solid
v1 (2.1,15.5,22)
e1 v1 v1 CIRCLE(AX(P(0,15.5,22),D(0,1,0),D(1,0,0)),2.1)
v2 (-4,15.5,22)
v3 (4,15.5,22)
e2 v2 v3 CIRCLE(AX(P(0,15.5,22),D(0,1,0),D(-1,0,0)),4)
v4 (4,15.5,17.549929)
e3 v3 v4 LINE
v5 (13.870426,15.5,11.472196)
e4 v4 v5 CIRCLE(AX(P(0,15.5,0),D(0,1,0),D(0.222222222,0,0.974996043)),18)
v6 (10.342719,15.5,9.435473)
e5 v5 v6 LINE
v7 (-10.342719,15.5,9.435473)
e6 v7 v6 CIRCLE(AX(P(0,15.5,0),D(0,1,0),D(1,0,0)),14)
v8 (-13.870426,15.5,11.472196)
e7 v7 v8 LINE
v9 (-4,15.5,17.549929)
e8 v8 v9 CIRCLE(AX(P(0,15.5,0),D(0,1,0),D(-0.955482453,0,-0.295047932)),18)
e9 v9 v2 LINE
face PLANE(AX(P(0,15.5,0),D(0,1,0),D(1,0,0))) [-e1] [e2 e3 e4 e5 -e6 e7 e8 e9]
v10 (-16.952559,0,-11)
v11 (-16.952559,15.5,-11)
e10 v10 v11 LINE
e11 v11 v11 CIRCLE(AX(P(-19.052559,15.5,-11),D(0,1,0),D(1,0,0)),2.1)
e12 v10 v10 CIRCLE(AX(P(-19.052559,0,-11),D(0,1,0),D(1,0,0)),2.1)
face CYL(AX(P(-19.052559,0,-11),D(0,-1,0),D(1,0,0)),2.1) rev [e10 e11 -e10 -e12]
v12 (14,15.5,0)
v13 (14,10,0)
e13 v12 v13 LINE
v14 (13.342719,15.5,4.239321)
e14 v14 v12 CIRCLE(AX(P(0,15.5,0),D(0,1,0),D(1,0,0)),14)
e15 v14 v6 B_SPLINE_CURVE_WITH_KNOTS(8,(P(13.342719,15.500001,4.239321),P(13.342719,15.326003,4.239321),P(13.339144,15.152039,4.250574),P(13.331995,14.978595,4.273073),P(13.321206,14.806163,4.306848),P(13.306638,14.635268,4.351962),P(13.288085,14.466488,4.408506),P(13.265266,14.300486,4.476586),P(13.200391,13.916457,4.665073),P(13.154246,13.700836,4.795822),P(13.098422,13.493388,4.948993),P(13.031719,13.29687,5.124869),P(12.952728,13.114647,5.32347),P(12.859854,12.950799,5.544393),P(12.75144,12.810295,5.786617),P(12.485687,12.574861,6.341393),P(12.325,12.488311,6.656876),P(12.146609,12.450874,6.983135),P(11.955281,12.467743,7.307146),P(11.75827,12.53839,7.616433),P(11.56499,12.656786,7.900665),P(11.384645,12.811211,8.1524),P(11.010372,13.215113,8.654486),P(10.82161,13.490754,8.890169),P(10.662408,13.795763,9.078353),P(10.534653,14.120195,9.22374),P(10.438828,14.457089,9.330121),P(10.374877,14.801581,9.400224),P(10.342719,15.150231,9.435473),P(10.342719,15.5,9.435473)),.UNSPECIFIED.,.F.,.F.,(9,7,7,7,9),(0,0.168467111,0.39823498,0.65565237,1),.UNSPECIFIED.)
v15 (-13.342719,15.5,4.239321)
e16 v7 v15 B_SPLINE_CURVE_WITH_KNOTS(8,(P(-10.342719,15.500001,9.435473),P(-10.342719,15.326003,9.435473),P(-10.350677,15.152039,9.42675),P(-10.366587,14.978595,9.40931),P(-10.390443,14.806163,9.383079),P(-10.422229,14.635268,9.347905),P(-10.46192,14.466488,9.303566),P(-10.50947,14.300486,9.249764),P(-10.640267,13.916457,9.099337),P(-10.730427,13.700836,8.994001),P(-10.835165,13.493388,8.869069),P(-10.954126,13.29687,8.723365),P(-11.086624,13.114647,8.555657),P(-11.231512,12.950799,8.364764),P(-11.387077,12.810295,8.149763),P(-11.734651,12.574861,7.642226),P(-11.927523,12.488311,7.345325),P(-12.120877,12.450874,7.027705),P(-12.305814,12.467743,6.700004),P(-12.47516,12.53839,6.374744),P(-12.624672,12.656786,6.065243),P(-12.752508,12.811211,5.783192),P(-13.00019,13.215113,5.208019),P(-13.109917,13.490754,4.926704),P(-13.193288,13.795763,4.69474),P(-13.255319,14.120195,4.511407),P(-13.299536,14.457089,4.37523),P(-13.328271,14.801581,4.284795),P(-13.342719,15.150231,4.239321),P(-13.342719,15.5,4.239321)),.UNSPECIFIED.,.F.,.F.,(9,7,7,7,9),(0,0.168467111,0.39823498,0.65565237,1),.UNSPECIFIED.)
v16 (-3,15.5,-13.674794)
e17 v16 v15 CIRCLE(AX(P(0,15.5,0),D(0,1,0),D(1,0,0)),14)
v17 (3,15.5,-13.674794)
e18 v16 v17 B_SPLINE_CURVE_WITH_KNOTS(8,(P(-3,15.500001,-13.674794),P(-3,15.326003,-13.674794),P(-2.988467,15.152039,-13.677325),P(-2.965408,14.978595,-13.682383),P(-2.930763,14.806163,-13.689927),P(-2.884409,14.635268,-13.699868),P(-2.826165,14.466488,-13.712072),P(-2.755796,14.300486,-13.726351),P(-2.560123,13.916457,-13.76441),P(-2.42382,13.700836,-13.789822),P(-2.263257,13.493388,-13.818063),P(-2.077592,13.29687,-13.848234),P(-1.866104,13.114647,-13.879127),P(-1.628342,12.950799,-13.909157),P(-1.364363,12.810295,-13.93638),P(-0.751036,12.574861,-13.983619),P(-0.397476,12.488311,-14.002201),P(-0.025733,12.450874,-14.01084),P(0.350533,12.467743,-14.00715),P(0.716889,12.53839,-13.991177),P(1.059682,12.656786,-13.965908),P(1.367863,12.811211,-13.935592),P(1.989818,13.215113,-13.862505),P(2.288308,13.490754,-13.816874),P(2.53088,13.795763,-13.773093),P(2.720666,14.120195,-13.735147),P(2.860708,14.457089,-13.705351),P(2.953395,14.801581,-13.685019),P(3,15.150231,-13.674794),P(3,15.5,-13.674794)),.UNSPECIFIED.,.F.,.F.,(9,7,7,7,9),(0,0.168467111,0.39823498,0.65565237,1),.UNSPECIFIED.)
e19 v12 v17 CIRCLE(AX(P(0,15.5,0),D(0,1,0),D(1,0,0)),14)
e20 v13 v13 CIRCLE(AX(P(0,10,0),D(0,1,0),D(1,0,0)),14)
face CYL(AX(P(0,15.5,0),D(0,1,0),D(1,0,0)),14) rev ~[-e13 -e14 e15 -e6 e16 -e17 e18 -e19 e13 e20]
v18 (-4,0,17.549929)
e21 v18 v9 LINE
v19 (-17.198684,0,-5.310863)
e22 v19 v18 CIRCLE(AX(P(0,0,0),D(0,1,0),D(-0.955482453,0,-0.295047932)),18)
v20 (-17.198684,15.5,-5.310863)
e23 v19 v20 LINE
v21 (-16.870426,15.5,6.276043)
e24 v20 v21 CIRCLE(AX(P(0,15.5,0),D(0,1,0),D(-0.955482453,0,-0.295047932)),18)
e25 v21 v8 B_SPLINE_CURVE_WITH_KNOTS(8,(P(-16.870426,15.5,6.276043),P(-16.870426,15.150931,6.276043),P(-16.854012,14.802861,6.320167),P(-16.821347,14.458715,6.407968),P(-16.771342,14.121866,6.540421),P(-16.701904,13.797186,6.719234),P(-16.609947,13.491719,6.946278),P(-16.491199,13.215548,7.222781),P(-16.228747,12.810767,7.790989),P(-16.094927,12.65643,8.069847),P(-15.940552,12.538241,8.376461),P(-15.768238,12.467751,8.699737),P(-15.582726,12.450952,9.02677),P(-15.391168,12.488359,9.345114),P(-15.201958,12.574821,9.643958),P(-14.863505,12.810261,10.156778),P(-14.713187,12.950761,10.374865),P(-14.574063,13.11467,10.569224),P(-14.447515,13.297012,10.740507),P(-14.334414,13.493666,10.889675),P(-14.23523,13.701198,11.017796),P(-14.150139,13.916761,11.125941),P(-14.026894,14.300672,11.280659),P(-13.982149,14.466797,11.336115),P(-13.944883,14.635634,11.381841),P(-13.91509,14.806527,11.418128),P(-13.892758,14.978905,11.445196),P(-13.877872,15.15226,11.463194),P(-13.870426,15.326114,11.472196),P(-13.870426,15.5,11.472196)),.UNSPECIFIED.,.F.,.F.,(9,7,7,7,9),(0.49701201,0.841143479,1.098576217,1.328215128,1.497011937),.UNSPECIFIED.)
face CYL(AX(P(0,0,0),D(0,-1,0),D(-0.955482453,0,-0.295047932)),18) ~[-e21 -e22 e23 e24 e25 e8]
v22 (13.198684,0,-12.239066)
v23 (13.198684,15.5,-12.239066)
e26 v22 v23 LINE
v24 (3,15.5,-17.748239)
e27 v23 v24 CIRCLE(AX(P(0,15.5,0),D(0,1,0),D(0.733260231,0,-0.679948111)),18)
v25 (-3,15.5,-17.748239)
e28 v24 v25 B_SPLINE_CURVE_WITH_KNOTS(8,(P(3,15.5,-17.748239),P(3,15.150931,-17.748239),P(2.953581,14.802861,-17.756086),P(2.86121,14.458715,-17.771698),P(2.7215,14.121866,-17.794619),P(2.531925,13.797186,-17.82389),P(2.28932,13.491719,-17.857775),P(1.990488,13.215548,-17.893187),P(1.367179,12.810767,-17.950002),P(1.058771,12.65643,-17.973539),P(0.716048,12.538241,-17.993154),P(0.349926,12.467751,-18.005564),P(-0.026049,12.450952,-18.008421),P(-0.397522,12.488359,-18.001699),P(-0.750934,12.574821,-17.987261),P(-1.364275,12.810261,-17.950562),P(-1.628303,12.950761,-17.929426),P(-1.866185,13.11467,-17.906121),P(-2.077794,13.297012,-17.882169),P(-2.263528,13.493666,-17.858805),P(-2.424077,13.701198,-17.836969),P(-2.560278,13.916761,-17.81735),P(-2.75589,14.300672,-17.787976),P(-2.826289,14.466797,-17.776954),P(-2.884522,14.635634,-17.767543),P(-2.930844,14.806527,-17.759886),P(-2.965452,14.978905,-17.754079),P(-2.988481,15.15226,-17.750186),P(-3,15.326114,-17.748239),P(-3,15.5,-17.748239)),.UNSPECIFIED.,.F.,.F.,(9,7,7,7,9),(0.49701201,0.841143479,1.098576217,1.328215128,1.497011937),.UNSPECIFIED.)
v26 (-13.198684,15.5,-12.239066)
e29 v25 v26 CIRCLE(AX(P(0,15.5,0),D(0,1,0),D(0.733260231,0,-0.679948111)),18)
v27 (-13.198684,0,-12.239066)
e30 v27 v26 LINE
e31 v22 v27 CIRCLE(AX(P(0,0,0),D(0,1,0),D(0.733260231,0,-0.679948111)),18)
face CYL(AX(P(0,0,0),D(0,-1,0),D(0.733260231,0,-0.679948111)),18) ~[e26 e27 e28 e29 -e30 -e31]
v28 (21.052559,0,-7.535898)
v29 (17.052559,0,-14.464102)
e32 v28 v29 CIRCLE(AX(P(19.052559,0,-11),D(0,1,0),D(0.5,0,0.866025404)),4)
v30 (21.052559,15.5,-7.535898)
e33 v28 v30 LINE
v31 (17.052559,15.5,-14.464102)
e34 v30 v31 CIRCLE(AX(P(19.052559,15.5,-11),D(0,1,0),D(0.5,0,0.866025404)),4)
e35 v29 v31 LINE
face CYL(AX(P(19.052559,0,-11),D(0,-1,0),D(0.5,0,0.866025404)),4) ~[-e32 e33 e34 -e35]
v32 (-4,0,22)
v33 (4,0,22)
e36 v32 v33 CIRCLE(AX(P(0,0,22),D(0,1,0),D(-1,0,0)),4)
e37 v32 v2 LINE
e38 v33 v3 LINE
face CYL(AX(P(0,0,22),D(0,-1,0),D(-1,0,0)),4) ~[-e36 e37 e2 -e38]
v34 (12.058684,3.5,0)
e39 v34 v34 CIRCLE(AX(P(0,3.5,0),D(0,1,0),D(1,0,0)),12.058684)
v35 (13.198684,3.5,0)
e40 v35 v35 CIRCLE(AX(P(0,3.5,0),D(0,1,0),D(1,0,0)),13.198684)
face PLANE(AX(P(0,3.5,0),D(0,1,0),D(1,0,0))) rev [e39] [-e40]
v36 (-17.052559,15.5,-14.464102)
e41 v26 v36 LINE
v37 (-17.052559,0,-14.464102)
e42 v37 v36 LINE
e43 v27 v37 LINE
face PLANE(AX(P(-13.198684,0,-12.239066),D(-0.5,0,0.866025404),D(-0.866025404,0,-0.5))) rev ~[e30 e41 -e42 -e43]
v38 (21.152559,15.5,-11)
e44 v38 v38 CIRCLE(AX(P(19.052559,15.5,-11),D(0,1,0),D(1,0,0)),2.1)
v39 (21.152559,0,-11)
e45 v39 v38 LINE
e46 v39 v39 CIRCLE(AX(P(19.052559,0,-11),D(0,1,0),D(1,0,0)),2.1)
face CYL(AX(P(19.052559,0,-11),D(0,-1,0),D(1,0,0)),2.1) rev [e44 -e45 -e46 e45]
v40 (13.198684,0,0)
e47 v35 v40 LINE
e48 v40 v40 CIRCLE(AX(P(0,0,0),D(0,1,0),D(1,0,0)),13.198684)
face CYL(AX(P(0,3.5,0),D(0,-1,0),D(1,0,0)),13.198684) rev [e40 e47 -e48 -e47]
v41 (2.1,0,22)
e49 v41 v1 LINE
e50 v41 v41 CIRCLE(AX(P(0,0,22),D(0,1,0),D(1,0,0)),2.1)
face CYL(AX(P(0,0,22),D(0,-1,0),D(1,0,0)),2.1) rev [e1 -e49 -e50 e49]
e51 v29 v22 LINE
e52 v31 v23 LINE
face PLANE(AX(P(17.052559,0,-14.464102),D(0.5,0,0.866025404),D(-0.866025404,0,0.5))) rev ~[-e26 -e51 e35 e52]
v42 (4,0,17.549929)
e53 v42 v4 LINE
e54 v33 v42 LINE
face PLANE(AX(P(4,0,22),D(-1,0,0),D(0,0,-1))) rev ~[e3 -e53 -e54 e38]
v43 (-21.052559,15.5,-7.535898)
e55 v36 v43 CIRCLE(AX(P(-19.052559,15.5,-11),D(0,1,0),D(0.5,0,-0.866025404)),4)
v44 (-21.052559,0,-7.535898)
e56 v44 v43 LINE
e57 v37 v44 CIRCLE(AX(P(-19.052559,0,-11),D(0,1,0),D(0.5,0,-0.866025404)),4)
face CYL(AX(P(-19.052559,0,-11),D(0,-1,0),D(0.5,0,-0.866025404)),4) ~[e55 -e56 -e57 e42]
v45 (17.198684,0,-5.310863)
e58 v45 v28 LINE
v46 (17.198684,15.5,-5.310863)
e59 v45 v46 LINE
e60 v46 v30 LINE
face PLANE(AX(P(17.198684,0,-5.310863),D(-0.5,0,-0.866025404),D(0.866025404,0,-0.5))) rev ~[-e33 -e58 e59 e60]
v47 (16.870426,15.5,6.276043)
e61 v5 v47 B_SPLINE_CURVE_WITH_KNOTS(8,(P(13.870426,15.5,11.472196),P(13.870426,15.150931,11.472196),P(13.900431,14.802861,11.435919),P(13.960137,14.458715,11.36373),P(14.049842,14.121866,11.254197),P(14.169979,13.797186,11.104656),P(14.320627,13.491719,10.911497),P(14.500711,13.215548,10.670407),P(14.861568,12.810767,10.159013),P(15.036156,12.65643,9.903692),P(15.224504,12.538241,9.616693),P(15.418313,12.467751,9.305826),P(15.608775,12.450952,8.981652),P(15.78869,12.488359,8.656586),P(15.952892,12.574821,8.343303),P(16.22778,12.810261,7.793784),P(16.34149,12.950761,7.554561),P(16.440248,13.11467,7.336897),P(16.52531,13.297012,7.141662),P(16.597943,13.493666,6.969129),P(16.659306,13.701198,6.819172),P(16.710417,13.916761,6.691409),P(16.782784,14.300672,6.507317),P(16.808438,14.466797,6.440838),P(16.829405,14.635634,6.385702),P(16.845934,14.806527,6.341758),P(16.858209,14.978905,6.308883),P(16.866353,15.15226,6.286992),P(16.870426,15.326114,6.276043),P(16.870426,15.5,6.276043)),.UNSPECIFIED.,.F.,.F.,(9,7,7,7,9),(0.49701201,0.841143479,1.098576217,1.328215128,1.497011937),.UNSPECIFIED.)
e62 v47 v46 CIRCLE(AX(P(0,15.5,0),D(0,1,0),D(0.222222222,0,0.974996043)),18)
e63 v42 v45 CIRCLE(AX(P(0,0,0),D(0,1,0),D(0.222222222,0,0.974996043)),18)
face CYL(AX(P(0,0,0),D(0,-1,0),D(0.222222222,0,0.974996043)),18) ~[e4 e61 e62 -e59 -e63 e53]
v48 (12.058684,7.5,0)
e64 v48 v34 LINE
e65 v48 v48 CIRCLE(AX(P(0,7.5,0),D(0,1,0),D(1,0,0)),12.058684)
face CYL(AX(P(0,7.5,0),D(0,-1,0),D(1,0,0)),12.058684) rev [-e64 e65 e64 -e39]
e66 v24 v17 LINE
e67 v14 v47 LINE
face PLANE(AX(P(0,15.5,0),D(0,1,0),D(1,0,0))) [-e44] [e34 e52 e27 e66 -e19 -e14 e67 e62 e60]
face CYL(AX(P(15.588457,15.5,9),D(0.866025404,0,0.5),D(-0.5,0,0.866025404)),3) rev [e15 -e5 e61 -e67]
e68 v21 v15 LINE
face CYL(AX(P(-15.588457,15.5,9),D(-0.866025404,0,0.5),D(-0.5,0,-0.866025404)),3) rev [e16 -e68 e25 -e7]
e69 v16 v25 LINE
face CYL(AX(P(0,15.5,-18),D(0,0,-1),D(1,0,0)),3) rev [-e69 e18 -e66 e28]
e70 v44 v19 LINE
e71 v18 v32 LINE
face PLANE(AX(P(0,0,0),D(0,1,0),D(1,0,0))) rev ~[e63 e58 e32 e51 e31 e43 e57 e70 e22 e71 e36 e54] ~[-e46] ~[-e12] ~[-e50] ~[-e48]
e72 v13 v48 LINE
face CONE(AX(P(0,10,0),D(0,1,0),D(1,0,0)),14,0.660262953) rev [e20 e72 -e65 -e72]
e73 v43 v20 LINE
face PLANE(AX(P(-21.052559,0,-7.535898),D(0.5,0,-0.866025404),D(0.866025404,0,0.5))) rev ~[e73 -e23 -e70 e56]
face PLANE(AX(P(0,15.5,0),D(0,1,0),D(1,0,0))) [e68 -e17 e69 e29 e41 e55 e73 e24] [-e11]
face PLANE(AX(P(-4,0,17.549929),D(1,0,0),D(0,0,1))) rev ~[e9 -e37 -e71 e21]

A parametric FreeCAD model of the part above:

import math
import FreeCAD as App
import Part
import Sketcher
from FreeCAD import Vector
Q = App.Units.Quantity


def add_polygon(sketch, points):
    """Adds a closed chain of lines whose ends are joined by coincident constraints."""
    first, n = sketch.GeometryCount, len(points)
    for a, b in zip(points, points[1:] + points[:1]):
        sketch.addGeometry(Part.LineSegment(App.Vector(*a, 0), App.Vector(*b, 0)), False)
    for i in range(n):
        sketch.addConstraint(Sketcher.Constraint("Coincident", first + i, 2, first + (i + 1) % n, 1))

doc = App.newDocument("Part")
body = doc.addObject("PartDesign::Body", "Body")

sketch1 = body.newObject("Sketcher::SketchObject", "Sketch")
sketch1.AttachmentSupport = (doc.getObject("XZ_Plane"), [""])
sketch1.MapMode = "FlatFace"
sketch1.addGeometry(Part.LineSegment(Vector(-4, 17.5, 0), Vector(-4, 22, 0)), False)
sketch1.addGeometry(Part.ArcOfCircle(Part.Circle(Vector(0, 22, 0), Vector(0, 0, 1), 4), math.radians(0), math.radians(180)), False)
sketch1.addGeometry(Part.LineSegment(Vector(4, 22, 0), Vector(4, 17.5, 0)), False)
sketch1.addGeometry(Part.ArcOfCircle(Part.Circle(Vector(0, 0, 0), Vector(0, 0, 1), 18), math.radians(-17), math.radians(77)), False)
sketch1.addGeometry(Part.LineSegment(Vector(17.2, -5.3, 0), Vector(21.1, -7.5, 0)), False)
sketch1.addGeometry(Part.ArcOfCircle(Part.Circle(Vector(19.1, -11, 0), Vector(0, 0, 1), 4), math.radians(-120), math.radians(60)), False)
sketch1.addGeometry(Part.LineSegment(Vector(17.1, -14.5, 0), Vector(13.2, -12.2, 0)), False)
sketch1.addGeometry(Part.ArcOfCircle(Part.Circle(Vector(0, 0, 0), Vector(0, 0, 1), 18), math.radians(-137), math.radians(-43)), False)
sketch1.addGeometry(Part.LineSegment(Vector(-13.2, -12.2, 0), Vector(-17.1, -14.5, 0)), False)
sketch1.addGeometry(Part.ArcOfCircle(Part.Circle(Vector(-19.1, -11, 0), Vector(0, 0, 1), 4), math.radians(120), math.radians(300)), False)
sketch1.addGeometry(Part.LineSegment(Vector(-21.1, -7.5, 0), Vector(-17.2, -5.3, 0)), False)
sketch1.addGeometry(Part.ArcOfCircle(Part.Circle(Vector(0, 0, 0), Vector(0, 0, 1), 18), math.radians(103), math.radians(197)), False)
sketch1.addGeometry(Part.Circle(Vector(0, 22, 0), Vector(0, 0, 1), 2.1), False)
sketch1.addGeometry(Part.Circle(Vector(-19.1, -11, 0), Vector(0, 0, 1), 2.1), False)
sketch1.addGeometry(Part.Circle(Vector(19.1, -11, 0), Vector(0, 0, 1), 2.1), False)
sketch1.addConstraint(Sketcher.Constraint("Tangent", 0, 2, 1, 2))
sketch1.addConstraint(Sketcher.Constraint("Tangent", 1, 1, 2, 1))
sketch1.addConstraint(Sketcher.Constraint("Coincident", 2, 2, 3, 2))
sketch1.addConstraint(Sketcher.Constraint("Coincident", 3, 1, 4, 1))
sketch1.addConstraint(Sketcher.Constraint("Tangent", 4, 2, 5, 2))
sketch1.addConstraint(Sketcher.Constraint("Tangent", 5, 1, 6, 1))
sketch1.addConstraint(Sketcher.Constraint("Coincident", 6, 2, 7, 2))
sketch1.addConstraint(Sketcher.Constraint("Coincident", 7, 1, 8, 1))
sketch1.addConstraint(Sketcher.Constraint("Tangent", 8, 2, 9, 2))
sketch1.addConstraint(Sketcher.Constraint("Tangent", 9, 1, 10, 1))
sketch1.addConstraint(Sketcher.Constraint("Coincident", 10, 2, 11, 2))
sketch1.addConstraint(Sketcher.Constraint("Coincident", 11, 1, 0, 1))
sketch1.addConstraint(Sketcher.Constraint("Vertical", 0))
sketch1.addConstraint(Sketcher.Constraint("Vertical", 2))
sketch1.addConstraint(Sketcher.Constraint("Coincident", 3, 3, -1, 1))
sketch1.addConstraint(Sketcher.Constraint("Coincident", 7, 3, -1, 1))
sketch1.addConstraint(Sketcher.Constraint("Coincident", 11, 3, -1, 1))
sketch1.addConstraint(Sketcher.Constraint("Coincident", 12, 3, 1, 3))
sketch1.addConstraint(Sketcher.Constraint("Coincident", 13, 3, 9, 3))
sketch1.addConstraint(Sketcher.Constraint("Coincident", 14, 3, 5, 3))
sketch1.addConstraint(Sketcher.Constraint("Equal", 1, 5))
sketch1.addConstraint(Sketcher.Constraint("Equal", 3, 7))
sketch1.addConstraint(Sketcher.Constraint("Equal", 5, 9))
sketch1.addConstraint(Sketcher.Constraint("Equal", 7, 11))
sketch1.addConstraint(Sketcher.Constraint("Equal", 12, 13))
sketch1.addConstraint(Sketcher.Constraint("Equal", 13, 14))
sketch1.addConstraint(Sketcher.Constraint("Symmetric", 5, 3, 9, 3, -2))
sketch1.addConstraint(Sketcher.Constraint("PointOnObject", 1, 3, -2))
sketch1.addConstraint(Sketcher.Constraint("Parallel", 4, 6))
sketch1.addConstraint(Sketcher.Constraint("Parallel", 8, 10))
sketch1.addConstraint(Sketcher.Constraint("Horizontal", 6, 2, 7, 1))
sketch1.addConstraint(Sketcher.Constraint("Equal", 4, 6))
sketch1.addConstraint(Sketcher.Constraint("Radius", 1, Q("4 mm")))
sketch1.addConstraint(Sketcher.Constraint("Radius", 3, Q("18 mm")))
sketch1.addConstraint(Sketcher.Constraint("Diameter", 12, Q("4.2 mm")))
sketch1.addConstraint(Sketcher.Constraint("Angle", 4, Q("-30 deg")))
sketch1.addConstraint(Sketcher.Constraint("DistanceY", -1, 1, 1, 3, Q("22 mm")))
sketch1.addConstraint(Sketcher.Constraint("DistanceY", 5, 3, -1, 1, Q("11 mm")))
pad1 = body.newObject("PartDesign::Pad", "Pad")
pad1.Profile = sketch1
pad1.Length = 15.5
pad1.Reversed = True

sketch2 = body.newObject("Sketcher::SketchObject", "Sketch001")
sketch2.AttachmentSupport = (doc.getObject("XZ_Plane"), [""])
sketch2.MapMode = "FlatFace"
sketch2.AttachmentOffset = App.Placement(Vector(0, 0, -15.5), App.Rotation())
sketch2.addGeometry(Part.Circle(Vector(0, 0, 0), Vector(0, 0, 1), 14), False)
sketch2.addConstraint(Sketcher.Constraint("Coincident", 0, 3, -1, 1))
sketch2.addConstraint(Sketcher.Constraint("Diameter", 0, Q("28 mm")))
pocket1 = body.newObject("PartDesign::Pocket", "Pocket")
pocket1.Profile = sketch2
pocket1.Type = "ThroughAll"
pocket1.Reversed = True

sketch3 = body.newObject("Sketcher::SketchObject", "Sketch002")
sketch3.AttachmentSupport = (doc.getObject("XY_Plane"), [""])
sketch3.MapMode = "FlatFace"
add_polygon(sketch3, [(14, 10), (12.06, 7.5), (12.06, 3.5), (13.2, 3.5), (13.2, 0), (14.5, 0), (14.5, 10)])
sketch3.addConstraint(Sketcher.Constraint("Vertical", 1))
sketch3.addConstraint(Sketcher.Constraint("Horizontal", 2))
sketch3.addConstraint(Sketcher.Constraint("Vertical", 3))
sketch3.addConstraint(Sketcher.Constraint("Horizontal", 4))
sketch3.addConstraint(Sketcher.Constraint("Vertical", 5))
sketch3.addConstraint(Sketcher.Constraint("Horizontal", 6))
sketch3.addConstraint(Sketcher.Constraint("PointOnObject", 3, 2, -1))
sketch3.addConstraint(Sketcher.Constraint("DistanceY", 1, 2, 1, 1, Q("4 mm")))
sketch3.addConstraint(Sketcher.Constraint("DistanceY", 5, 1, 5, 2, Q("10 mm")))
sketch3.addConstraint(Sketcher.Constraint("DistanceY", 3, 2, 3, 1, Q("3.5 mm")))
sketch3.addConstraint(Sketcher.Constraint("DistanceX", -1, 1, 6, 2, Q("14 mm")))
sketch3.addConstraint(Sketcher.Constraint("DistanceX", 2, 1, 2, 2, Q("1.14 mm")))
sketch3.addConstraint(Sketcher.Constraint("DistanceX", 6, 2, 6, 1, Q("0.499168 mm")))
sketch3.addConstraint(Sketcher.Constraint("DistanceX", 4, 1, 4, 2, Q("1.300484 mm")))
revolution = body.newObject("PartDesign::Revolution", "Revolution")
revolution.Profile = sketch3
revolution.ReferenceAxis = (sketch3, ["V_Axis"])
revolution.Angle = 360

sketch4 = body.newObject("Sketcher::SketchObject", "Sketch003")
sketch4.AttachmentSupport = (doc.getObject("XY_Plane"), [""])
sketch4.MapMode = "FlatFace"
sketch4.AttachmentOffset = App.Placement(Vector(0, 0, -18), App.Rotation())
sketch4.addGeometry(Part.Circle(Vector(0, 15.5, 0), Vector(0, 0, 1), 3), False)
sketch4.addConstraint(Sketcher.Constraint("PointOnObject", 0, 3, -2))
sketch4.addConstraint(Sketcher.Constraint("Diameter", 0, Q("6 mm")))
sketch4.addConstraint(Sketcher.Constraint("DistanceY", -1, 1, 0, 3, Q("15.5 mm")))
pocket2 = body.newObject("PartDesign::Pocket", "Pocket001")
pocket2.Profile = sketch4
pocket2.Length = 4.325206
pocket2.Reversed = True
doc.recompute()

polarpattern = body.newObject("PartDesign::PolarPattern", "PolarPattern")
polarpattern.Originals = [pocket2]
polarpattern.Axis = (doc.getObject("Y_Axis"), [""])
polarpattern.Angle = 360
polarpattern.Occurrences = 3
body.Tip = polarpattern

doc.recompute()
